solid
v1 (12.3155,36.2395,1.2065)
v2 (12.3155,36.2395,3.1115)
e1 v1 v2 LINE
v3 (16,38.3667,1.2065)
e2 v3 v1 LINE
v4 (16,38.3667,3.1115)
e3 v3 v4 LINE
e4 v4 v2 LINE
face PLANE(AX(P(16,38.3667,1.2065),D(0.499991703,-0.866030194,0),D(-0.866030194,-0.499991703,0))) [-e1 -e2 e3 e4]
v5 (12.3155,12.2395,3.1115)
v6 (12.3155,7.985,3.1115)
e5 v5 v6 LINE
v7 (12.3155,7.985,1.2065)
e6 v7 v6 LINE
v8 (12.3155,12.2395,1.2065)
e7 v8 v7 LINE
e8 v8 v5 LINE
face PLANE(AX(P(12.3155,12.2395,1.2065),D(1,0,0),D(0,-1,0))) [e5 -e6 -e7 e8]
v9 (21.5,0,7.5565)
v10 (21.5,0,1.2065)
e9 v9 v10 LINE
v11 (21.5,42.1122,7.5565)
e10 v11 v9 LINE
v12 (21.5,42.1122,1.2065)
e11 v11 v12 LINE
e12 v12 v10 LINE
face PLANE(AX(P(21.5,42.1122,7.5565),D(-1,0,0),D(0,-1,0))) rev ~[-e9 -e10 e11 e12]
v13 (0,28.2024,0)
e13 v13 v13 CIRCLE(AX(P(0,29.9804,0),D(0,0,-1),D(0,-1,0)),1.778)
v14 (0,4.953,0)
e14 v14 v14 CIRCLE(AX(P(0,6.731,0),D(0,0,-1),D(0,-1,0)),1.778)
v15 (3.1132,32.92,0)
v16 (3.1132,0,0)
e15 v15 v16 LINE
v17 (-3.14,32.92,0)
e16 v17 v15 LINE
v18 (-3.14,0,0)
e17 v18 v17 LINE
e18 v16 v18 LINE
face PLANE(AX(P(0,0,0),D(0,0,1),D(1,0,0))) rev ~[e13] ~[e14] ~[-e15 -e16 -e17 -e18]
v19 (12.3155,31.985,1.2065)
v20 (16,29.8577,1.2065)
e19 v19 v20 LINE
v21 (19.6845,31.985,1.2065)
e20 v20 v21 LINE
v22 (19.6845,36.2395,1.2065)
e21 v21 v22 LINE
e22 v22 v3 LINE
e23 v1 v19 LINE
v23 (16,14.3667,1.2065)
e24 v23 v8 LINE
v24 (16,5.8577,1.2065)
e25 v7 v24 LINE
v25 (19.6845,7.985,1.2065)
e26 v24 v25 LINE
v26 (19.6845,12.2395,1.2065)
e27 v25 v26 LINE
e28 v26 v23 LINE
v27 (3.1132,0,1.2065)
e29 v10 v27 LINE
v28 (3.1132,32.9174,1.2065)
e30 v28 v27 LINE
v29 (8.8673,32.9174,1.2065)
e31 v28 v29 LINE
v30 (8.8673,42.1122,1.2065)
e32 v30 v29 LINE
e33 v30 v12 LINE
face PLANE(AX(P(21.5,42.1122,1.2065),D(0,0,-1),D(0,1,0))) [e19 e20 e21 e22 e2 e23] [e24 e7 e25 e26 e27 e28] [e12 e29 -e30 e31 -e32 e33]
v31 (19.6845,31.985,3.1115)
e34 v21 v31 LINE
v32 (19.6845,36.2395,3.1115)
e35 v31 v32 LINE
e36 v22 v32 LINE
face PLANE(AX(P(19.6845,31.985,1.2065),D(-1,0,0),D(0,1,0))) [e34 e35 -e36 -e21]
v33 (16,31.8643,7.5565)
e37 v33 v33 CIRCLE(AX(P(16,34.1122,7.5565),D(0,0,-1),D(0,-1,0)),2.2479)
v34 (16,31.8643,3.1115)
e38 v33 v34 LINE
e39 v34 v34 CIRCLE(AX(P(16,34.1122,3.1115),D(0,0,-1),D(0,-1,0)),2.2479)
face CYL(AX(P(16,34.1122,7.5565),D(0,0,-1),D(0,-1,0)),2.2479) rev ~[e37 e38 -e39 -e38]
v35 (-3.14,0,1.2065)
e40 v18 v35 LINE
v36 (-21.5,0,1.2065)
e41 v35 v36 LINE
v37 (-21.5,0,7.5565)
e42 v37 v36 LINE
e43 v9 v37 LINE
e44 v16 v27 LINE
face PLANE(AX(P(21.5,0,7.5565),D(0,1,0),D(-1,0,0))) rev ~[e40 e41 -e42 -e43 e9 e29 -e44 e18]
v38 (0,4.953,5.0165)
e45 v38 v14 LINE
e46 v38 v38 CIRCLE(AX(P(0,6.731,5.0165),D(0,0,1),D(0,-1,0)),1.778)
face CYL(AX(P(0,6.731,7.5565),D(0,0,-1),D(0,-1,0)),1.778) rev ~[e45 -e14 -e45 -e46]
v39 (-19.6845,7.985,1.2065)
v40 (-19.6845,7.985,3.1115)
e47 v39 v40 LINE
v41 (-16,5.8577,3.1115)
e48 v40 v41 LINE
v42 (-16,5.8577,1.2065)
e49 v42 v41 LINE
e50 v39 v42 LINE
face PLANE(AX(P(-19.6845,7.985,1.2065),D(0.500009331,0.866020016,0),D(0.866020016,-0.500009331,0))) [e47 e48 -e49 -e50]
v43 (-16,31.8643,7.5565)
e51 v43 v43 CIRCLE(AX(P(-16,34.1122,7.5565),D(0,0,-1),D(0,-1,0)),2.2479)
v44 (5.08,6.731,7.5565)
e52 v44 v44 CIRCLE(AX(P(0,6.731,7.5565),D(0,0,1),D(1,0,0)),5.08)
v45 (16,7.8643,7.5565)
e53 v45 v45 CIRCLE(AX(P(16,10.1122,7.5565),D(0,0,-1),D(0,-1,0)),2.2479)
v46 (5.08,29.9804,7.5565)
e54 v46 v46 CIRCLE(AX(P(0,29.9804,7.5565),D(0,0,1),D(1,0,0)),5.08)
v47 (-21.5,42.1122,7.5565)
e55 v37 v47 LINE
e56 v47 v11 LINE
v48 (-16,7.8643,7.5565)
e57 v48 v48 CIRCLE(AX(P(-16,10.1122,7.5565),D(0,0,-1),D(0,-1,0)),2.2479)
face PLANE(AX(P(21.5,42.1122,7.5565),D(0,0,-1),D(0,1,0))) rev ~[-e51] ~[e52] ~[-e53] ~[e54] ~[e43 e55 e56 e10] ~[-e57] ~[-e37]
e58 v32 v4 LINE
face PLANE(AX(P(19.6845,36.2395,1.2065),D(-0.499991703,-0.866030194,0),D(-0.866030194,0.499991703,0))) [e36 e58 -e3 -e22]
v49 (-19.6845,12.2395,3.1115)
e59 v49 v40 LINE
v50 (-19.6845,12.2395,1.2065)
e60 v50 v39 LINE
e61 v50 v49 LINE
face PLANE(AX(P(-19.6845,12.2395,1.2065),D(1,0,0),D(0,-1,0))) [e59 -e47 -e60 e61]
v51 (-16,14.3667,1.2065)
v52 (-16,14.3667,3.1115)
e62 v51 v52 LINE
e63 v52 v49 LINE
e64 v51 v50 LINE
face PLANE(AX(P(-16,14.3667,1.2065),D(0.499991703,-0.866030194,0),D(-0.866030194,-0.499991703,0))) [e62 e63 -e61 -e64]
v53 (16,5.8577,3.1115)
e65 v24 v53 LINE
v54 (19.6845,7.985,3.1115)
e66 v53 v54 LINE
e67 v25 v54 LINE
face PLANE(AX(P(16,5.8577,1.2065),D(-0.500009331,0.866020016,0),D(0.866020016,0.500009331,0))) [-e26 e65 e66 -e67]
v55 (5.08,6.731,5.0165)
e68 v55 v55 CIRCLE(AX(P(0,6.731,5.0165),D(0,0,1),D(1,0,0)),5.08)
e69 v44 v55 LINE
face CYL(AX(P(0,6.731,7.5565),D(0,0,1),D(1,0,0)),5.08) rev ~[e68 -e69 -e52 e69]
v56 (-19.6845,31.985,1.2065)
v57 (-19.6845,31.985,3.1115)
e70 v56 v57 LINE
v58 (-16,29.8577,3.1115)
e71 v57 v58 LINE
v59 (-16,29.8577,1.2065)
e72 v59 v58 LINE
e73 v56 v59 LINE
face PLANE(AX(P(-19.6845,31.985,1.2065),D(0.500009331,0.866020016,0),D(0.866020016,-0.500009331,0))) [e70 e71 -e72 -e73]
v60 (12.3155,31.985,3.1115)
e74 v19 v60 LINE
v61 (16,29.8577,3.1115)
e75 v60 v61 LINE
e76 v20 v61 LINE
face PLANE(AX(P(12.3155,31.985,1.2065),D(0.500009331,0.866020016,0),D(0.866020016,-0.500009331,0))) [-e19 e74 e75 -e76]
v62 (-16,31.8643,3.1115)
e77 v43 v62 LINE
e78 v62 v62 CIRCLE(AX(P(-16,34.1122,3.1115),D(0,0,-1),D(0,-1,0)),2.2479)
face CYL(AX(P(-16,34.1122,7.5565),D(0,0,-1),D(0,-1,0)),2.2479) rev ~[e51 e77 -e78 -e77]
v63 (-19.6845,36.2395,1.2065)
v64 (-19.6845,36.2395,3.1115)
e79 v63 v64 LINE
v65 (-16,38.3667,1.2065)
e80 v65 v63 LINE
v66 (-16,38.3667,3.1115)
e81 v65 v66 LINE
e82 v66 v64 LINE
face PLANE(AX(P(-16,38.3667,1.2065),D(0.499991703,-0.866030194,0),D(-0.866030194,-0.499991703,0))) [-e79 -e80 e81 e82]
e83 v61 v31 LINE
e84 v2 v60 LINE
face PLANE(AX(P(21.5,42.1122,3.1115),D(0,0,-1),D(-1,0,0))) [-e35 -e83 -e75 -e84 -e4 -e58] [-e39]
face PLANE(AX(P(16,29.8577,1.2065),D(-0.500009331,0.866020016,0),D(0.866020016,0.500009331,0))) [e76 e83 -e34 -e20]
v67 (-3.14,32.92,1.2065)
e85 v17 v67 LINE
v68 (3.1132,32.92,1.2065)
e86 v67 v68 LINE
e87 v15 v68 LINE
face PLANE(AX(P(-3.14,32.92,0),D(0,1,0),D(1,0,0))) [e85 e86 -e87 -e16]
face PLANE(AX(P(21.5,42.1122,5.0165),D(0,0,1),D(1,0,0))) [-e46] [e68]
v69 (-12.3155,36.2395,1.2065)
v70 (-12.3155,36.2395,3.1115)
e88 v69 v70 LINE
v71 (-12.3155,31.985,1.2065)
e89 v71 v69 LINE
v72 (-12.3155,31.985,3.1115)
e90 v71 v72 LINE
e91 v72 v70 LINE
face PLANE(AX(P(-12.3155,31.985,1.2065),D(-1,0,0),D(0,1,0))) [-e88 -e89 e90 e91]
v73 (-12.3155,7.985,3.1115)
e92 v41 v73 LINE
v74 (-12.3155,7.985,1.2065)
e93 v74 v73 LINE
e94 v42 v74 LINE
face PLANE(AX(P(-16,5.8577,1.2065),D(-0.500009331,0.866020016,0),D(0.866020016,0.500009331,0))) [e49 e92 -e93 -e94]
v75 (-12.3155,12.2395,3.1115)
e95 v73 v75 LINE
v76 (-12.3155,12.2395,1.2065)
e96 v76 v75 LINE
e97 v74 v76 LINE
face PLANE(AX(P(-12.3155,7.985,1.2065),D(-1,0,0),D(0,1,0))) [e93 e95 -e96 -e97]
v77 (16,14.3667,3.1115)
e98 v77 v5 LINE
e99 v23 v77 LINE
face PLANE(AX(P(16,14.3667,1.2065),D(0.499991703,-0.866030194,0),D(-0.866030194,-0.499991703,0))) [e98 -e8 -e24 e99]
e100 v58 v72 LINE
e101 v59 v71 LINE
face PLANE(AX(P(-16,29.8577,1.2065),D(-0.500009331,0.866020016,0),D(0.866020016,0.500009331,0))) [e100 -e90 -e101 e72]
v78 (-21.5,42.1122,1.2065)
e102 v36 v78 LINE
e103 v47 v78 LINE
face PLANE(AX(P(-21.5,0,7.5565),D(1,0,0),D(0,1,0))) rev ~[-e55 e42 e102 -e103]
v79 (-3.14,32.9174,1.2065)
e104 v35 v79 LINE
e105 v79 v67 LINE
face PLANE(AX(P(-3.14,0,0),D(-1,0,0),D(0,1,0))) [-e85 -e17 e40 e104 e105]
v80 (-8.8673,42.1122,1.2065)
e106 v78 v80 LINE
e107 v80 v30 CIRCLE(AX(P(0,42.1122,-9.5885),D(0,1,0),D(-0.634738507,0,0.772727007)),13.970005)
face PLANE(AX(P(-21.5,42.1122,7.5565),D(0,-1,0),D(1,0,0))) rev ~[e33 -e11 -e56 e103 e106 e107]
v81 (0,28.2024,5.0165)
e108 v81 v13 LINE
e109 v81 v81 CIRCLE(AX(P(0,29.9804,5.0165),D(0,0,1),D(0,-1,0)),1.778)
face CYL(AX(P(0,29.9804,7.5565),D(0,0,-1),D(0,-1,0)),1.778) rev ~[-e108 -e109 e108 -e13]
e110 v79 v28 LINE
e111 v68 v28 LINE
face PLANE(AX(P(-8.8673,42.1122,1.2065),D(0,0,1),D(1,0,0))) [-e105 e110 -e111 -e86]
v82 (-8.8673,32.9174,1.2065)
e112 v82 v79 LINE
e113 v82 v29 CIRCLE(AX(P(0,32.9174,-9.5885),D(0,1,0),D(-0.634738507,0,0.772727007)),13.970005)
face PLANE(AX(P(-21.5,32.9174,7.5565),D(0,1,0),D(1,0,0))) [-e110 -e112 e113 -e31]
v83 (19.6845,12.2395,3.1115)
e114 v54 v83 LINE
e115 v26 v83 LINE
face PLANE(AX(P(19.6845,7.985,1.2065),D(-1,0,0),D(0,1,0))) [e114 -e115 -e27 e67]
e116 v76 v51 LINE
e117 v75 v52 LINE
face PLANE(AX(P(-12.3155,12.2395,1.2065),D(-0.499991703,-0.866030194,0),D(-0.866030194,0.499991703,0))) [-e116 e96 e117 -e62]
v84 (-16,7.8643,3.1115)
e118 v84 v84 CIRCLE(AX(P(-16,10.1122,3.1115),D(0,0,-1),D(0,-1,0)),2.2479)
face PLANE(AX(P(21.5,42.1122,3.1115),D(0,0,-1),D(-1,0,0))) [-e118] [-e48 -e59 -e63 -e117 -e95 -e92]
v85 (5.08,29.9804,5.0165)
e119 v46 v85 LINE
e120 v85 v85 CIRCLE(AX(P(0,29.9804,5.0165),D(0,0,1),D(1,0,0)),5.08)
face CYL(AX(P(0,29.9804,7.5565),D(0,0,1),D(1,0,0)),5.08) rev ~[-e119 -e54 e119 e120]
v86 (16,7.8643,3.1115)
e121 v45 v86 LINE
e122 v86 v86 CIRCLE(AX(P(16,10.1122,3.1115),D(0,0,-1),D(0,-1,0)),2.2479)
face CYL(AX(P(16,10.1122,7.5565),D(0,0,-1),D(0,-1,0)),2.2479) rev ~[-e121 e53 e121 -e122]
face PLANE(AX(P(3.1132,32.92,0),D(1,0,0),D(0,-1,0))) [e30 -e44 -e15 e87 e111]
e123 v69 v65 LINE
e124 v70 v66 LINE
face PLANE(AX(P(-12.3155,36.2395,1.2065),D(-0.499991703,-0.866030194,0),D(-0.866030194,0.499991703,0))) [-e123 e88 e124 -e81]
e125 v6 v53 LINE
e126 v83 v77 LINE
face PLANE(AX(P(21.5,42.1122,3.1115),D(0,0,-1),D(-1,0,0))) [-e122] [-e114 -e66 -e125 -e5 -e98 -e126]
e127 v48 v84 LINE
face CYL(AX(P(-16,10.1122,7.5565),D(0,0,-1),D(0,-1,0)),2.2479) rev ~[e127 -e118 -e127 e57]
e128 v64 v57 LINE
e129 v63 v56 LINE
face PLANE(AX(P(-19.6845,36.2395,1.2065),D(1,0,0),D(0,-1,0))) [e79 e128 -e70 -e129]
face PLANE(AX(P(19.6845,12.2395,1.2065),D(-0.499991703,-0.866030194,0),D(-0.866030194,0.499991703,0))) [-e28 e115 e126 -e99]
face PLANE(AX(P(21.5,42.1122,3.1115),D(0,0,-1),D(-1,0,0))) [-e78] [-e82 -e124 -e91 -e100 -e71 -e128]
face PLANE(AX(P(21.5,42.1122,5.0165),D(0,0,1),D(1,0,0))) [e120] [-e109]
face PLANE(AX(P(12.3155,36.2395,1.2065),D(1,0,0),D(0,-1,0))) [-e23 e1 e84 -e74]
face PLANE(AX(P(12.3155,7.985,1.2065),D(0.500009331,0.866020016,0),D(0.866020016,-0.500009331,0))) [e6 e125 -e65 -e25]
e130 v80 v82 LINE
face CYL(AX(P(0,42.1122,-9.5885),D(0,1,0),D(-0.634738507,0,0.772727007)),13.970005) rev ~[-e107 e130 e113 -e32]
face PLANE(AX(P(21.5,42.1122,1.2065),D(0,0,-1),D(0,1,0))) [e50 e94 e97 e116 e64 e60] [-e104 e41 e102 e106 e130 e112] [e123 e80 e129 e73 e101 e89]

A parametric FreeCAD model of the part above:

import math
import FreeCAD as App
import Part
import Sketcher

V = App.Vector
Q = App.Units.Quantity


def add_polygon(sketch, points):
    """Adds a closed chain of lines whose ends are joined by coincident constraints."""
    first, n = sketch.GeometryCount, len(points)
    for a, b in zip(points, points[1:] + points[:1]):
        sketch.addGeometry(Part.LineSegment(App.Vector(*a, 0), App.Vector(*b, 0)), False)
    for i in range(n):
        sketch.addConstraint(Sketcher.Constraint("Coincident", first + i, 2, first + (i + 1) % n, 1))

doc = App.newDocument("Part")
body = doc.addObject("PartDesign::Body", "Body")

sketch1 = body.newObject("Sketcher::SketchObject", "Sketch")
sketch1.AttachmentSupport = (doc.getObject("XY_Plane"), [""])
sketch1.MapMode = "FlatFace"
sketch1.AttachmentOffset = App.Placement(V(0, 0, 0.2975 * 25.4), App.Rotation())
add_polygon(sketch1, [(21.5, 0), (-21.5, 0), (-21.5, 42.1122), (21.5, 42.1122)])
sketch1.addGeometry(Part.Circle(V(16, 10.1122, 0), V(0, 0, 1), 2), False)
sketch1.addGeometry(Part.Circle(V(-16, 10.1122, 0), V(0, 0, 1), 2), False)
sketch1.addGeometry(Part.Circle(V(-16, 34.1122, 0), V(0, 0, 1), 2), False)
sketch1.addGeometry(Part.Circle(V(16, 34.1122, 0), V(0, 0, 1), 2), False)
sketch1.addConstraint(Sketcher.Constraint("Horizontal", 0))
sketch1.addConstraint(Sketcher.Constraint("Vertical", 1))
sketch1.addConstraint(Sketcher.Constraint("Horizontal", 2))
sketch1.addConstraint(Sketcher.Constraint("Vertical", 3))
sketch1.addConstraint(Sketcher.Constraint("Equal", 4, 5))
sketch1.addConstraint(Sketcher.Constraint("Equal", 5, 6))
sketch1.addConstraint(Sketcher.Constraint("Equal", 6, 7))
sketch1.addConstraint(Sketcher.Constraint("Symmetric", 0, 2, 3, 2, -1, 1))
sketch1.addConstraint(Sketcher.Constraint("Symmetric", 4, 3, 5, 3, -2))
sketch1.addConstraint(Sketcher.Constraint("Symmetric", 6, 3, 7, 3, -2))
sketch1.addConstraint(Sketcher.Constraint("Vertical", 5, 3, 6, 3))
sketch1.addConstraint(Sketcher.Constraint("Diameter", 4, 4.0))
sketch1.addConstraint(Sketcher.Constraint("DistanceY", -1, 1, 6, 3, Q("1.343 in")))
sketch1.addConstraint(Sketcher.Constraint("DistanceX", 0, 2, 0, 1, 43.0))
sketch1.addConstraint(Sketcher.Constraint("DistanceY", 1, 1, 1, 2, 42.1122))
sketch1.addConstraint(Sketcher.Constraint("DistanceX", -1, 1, 4, 3, 16.0))
sketch1.addConstraint(Sketcher.Constraint("DistanceY", -1, 1, 4, 3, 10.1122))
pad1 = body.newObject("PartDesign::Pad", "Pad")
pad1.Profile = sketch1
pad1.Length = Q("0.25 in")
pad1.Reversed = True

sketch2 = body.newObject("Sketcher::SketchObject", "Sketch001")
sketch2.AttachmentSupport = (doc.getObject("XY_Plane"), [""])
sketch2.MapMode = "FlatFace"
add_polygon(sketch2, [(-3.14, 0), (3.1132, 0), (3.1132, 32.92), (-3.14, 32.92)])
sketch2.addConstraint(Sketcher.Constraint("Horizontal", 0))
sketch2.addConstraint(Sketcher.Constraint("Vertical", 1))
sketch2.addConstraint(Sketcher.Constraint("Horizontal", 2))
sketch2.addConstraint(Sketcher.Constraint("Vertical", 3))
sketch2.addConstraint(Sketcher.Constraint("PointOnObject", 0, 2, -1))
sketch2.addConstraint(Sketcher.Constraint("DistanceX", 0, 1, 0, 2, Q("0.2462 in")))
sketch2.addConstraint(Sketcher.Constraint("DistanceY", 1, 1, 1, 2, 32.92))
sketch2.addConstraint(Sketcher.Constraint("DistanceX", -1, 1, 0, 2, 3.1132))
pad2 = body.newObject("PartDesign::Pad", "Pad001")
pad2.Profile = sketch2
pad2.Length = Q("0.0475 in")

sketch3 = body.newObject("Sketcher::SketchObject", "Sketch002")
sketch3.AttachmentSupport = (doc.getObject("XY_Plane"), [""])
sketch3.MapMode = "FlatFace"
sketch3.AttachmentOffset = App.Placement(V(0, 0, 0.2975 * 25.4), App.Rotation())
sketch3.addGeometry(Part.Circle(V(0, 6.731, 0), V(0, 0, 1), 1.778), False)
sketch3.addGeometry(Part.Circle(V(0, 29.9804, 0), V(0, 0, 1), 1.778), False)
sketch3.addConstraint(Sketcher.Constraint("Equal", 0, 1))
sketch3.addConstraint(Sketcher.Constraint("PointOnObject", 0, 3, -2))
sketch3.addConstraint(Sketcher.Constraint("PointOnObject", 1, 3, -2))
sketch3.addConstraint(Sketcher.Constraint("Diameter", 0, Q("0.14 in")))
sketch3.addConstraint(Sketcher.Constraint("DistanceY", -1, 1, 0, 3, Q("0.265 in")))
sketch3.addConstraint(Sketcher.Constraint("DistanceY", -1, 1, 1, 3, 29.9804))
doc.recompute()
hole = body.newObject("PartDesign::Hole", "Hole")
hole.Profile = sketch3
hole.ThreadType = "None"
hole.Diameter = Q("0.14 in")
hole.DepthType = "ThroughAll"

sketch4 = body.newObject("Sketcher::SketchObject", "Sketch003")
sketch4.AttachmentSupport = (doc.getObject("XY_Plane"), [""])
sketch4.MapMode = "FlatFace"
sketch4.AttachmentOffset = App.Placement(V(0, 0, 0.2975 * 25.4), App.Rotation())
sketch4.addGeometry(Part.Circle(V(0, 29.9804, 0), V(0, 0, 1), 5.08), False)
sketch4.addGeometry(Part.Circle(V(0, 29.9804, 0), V(0, 0, 1), 1.778), False)
sketch4.addGeometry(Part.Circle(V(0, 6.731, 0), V(0, 0, 1), 5.08), False)
sketch4.addGeometry(Part.Circle(V(0, 6.731, 0), V(0, 0, 1), 1.778), False)
sketch4.addConstraint(Sketcher.Constraint("Coincident", 1, 3, 0, 3))
sketch4.addConstraint(Sketcher.Constraint("Coincident", 3, 3, 2, 3))
sketch4.addConstraint(Sketcher.Constraint("Equal", 0, 2))
sketch4.addConstraint(Sketcher.Constraint("Equal", 1, 3))
sketch4.addConstraint(Sketcher.Constraint("PointOnObject", 0, 3, -2))
sketch4.addConstraint(Sketcher.Constraint("PointOnObject", 2, 3, -2))
sketch4.addConstraint(Sketcher.Constraint("Diameter", 0, Q("0.4 in")))
sketch4.addConstraint(Sketcher.Constraint("Diameter", 1, Q("0.14 in")))
sketch4.addConstraint(Sketcher.Constraint("DistanceY", -1, 1, 2, 3, Q("0.265 in")))
sketch4.addConstraint(Sketcher.Constraint("DistanceY", -1, 1, 0, 3, 29.9804))
pocket1 = body.newObject("PartDesign::Pocket", "Pocket")
pocket1.Profile = sketch4
pocket1.Length = Q("0.1 in")

sketch5 = body.newObject("Sketcher::SketchObject", "Sketch004")
sketch5.AttachmentSupport = (doc.getObject("XZ_Plane"), [""])
sketch5.MapMode = "FlatFace"
sketch5.AttachmentOffset = App.Placement(V(0, 0, -42.1122), App.Rotation())
sketch5.addGeometry(Part.LineSegment(V(8.8673, 1.2065, 0), V(-8.8673, 1.2065, 0)), False)
sketch5.addGeometry(Part.ArcOfCircle(Part.Circle(V(0, -9.5885, 0), V(0, 0, 1), 13.970005), math.radians(50.599407), math.radians(129.400593)), False)
sketch5.addConstraint(Sketcher.Constraint("Coincident", 0, 1, 1, 1))
sketch5.addConstraint(Sketcher.Constraint("Coincident", 1, 2, 0, 2))
sketch5.addConstraint(Sketcher.Constraint("Horizontal", 0))
sketch5.addConstraint(Sketcher.Constraint("PointOnObject", 1, 3, -2))
sketch5.addConstraint(Sketcher.Constraint("Radius", 1, Q("0.55 in")))
sketch5.addConstraint(Sketcher.Constraint("DistanceY", 1, 3, 0, 1, Q("0.425 in")))
sketch5.addConstraint(Sketcher.Constraint("DistanceY", 1, 3, -1, 1, Q("0.3775 in")))
pocket2 = body.newObject("PartDesign::Pocket", "Pocket001")
pocket2.Profile = sketch5
pocket2.Length = Q("0.362 in")
pocket2.Reversed = True

sketch6 = body.newObject("Sketcher::SketchObject", "Sketch005")
sketch6.AttachmentSupport = (doc.getObject("XY_Plane"), [""])
sketch6.MapMode = "FlatFace"
sketch6.AttachmentOffset = App.Placement(V(0, 0, 0.0475 * 25.4), App.Rotation())
add_polygon(sketch6, [(19.6845, 31.985), (16, 29.8577), (12.3155, 31.985), (12.3155, 36.2395), (16, 38.3667), (19.6845, 36.2395)])
add_polygon(sketch6, [(19.6845, 7.985), (16, 5.8577), (12.3155, 7.985), (12.3155, 12.2395), (16, 14.3667), (19.6845, 12.2395)])
add_polygon(sketch6, [(-12.3155, 31.985), (-16, 29.8577), (-19.6845, 31.985), (-19.6845, 36.2395), (-16, 38.3667), (-12.3155, 36.2395)])
add_polygon(sketch6, [(-12.3155, 7.985), (-16, 5.8577), (-19.6845, 7.985), (-19.6845, 12.2395), (-16, 14.3667), (-12.3155, 12.2395)])
sketch6.addConstraint(Sketcher.Constraint("Vertical", 2))
sketch6.addConstraint(Sketcher.Constraint("Vertical", 5))
sketch6.addConstraint(Sketcher.Constraint("Vertical", 8))
sketch6.addConstraint(Sketcher.Constraint("Vertical", 11))
sketch6.addConstraint(Sketcher.Constraint("Vertical", 14))
sketch6.addConstraint(Sketcher.Constraint("Vertical", 17))
sketch6.addConstraint(Sketcher.Constraint("Vertical", 20))
sketch6.addConstraint(Sketcher.Constraint("Vertical", 23))
sketch6.addConstraint(Sketcher.Constraint("Symmetric", 0, 2, 12, 2, -2))
sketch6.addConstraint(Sketcher.Constraint("Symmetric", 5, 2, 13, 2, -2))
sketch6.addConstraint(Sketcher.Constraint("Symmetric", 3, 2, 15, 2, -2))
sketch6.addConstraint(Sketcher.Constraint("Symmetric", 2, 2, 16, 2, -2))
sketch6.addConstraint(Sketcher.Constraint("Symmetric", 6, 2, 18, 2, -2))
sketch6.addConstraint(Sketcher.Constraint("Symmetric", 11, 2, 19, 2, -2))
sketch6.addConstraint(Sketcher.Constraint("Symmetric", 9, 2, 21, 2, -2))
sketch6.addConstraint(Sketcher.Constraint("Symmetric", 8, 2, 22, 2, -2))
sketch6.addConstraint(Sketcher.Constraint("Parallel", 0, 3))
sketch6.addConstraint(Sketcher.Constraint("Parallel", 1, 4))
sketch6.addConstraint(Sketcher.Constraint("Parallel", 3, 6))
sketch6.addConstraint(Sketcher.Constraint("Parallel", 4, 7))
sketch6.addConstraint(Sketcher.Constraint("Parallel", 6, 9))
sketch6.addConstraint(Sketcher.Constraint("Parallel", 7, 10))
sketch6.addConstraint(Sketcher.Constraint("Parallel", 9, 12))
sketch6.addConstraint(Sketcher.Constraint("Parallel", 10, 13))
sketch6.addConstraint(Sketcher.Constraint("Parallel", 12, 15))
sketch6.addConstraint(Sketcher.Constraint("Parallel", 15, 18))
sketch6.addConstraint(Sketcher.Constraint("Parallel", 18, 21))
sketch6.addConstraint(Sketcher.Constraint("Horizontal", 2, 2, 4, 2))
sketch6.addConstraint(Sketcher.Constraint("Horizontal", 1, 2, 5, 2))
sketch6.addConstraint(Sketcher.Constraint("Horizontal", 8, 2, 10, 2))
sketch6.addConstraint(Sketcher.Constraint("Horizontal", 7, 2, 11, 2))
sketch6.addConstraint(Sketcher.Constraint("Vertical", 3, 2, 6, 2))
sketch6.addConstraint(Sketcher.Constraint("Vertical", 2, 2, 7, 2))
sketch6.addConstraint(Sketcher.Constraint("Equal", 5, 8))
sketch6.addConstraint(Sketcher.Constraint("Angle", 0, Q("-149.9994 deg")))
sketch6.addConstraint(Sketcher.Constraint("DistanceY", 0, 2, 3, 2, Q("0.335 in")))
sketch6.addConstraint(Sketcher.Constraint("DistanceY", 2, 1, 2, 2, Q("0.1675 in")))
sketch6.addConstraint(Sketcher.Constraint("DistanceY", -1, 1, 0, 2, Q("1.1755 in")))
sketch6.addConstraint(Sketcher.Constraint("DistanceX", 13, 2, 0, 2, Q("1.4049 in")))
sketch6.addConstraint(Sketcher.Constraint("DistanceY", -1, 1, 6, 2, 5.8577))
pocket3 = body.newObject("PartDesign::Pocket", "Pocket002")
pocket3.Profile = sketch6
pocket3.Length = Q("0.075 in")
pocket3.Reversed = True

sketch7 = body.newObject("Sketcher::SketchObject", "Sketch006")
sketch7.AttachmentSupport = (doc.getObject("XY_Plane"), [""])
sketch7.MapMode = "FlatFace"
sketch7.AttachmentOffset = App.Placement(V(0, 0, 0.2975 * 25.4), App.Rotation())
sketch7.addGeometry(Part.Circle(V(-16, 34.1122, 0), V(0, 0, 1), 2.2479), False)
sketch7.addGeometry(Part.Circle(V(-16, 10.1122, 0), V(0, 0, 1), 2.2479), False)
sketch7.addGeometry(Part.Circle(V(16, 10.1122, 0), V(0, 0, 1), 2.2479), False)
sketch7.addGeometry(Part.Circle(V(16, 34.1122, 0), V(0, 0, 1), 2.2479), False)
sketch7.addConstraint(Sketcher.Constraint("Equal", 0, 1))
sketch7.addConstraint(Sketcher.Constraint("Equal", 1, 2))
sketch7.addConstraint(Sketcher.Constraint("Equal", 2, 3))
sketch7.addConstraint(Sketcher.Constraint("Symmetric", 1, 3, 2, 3, -2))
sketch7.addConstraint(Sketcher.Constraint("Symmetric", 0, 3, 3, 3, -2))
sketch7.addConstraint(Sketcher.Constraint("Vertical", 0, 3, 1, 3))
sketch7.addConstraint(Sketcher.Constraint("Diameter", 0, Q("0.177 in")))
sketch7.addConstraint(Sketcher.Constraint("DistanceY", -1, 1, 0, 3, Q("1.343 in")))
sketch7.addConstraint(Sketcher.Constraint("DistanceX", 0, 3, -1, 1, 16.0))
sketch7.addConstraint(Sketcher.Constraint("DistanceY", -1, 1, 1, 3, 10.1122))
doc.recompute()
hole2 = body.newObject("PartDesign::Hole", "Hole001")
hole2.Profile = sketch7
hole2.ThreadType = "None"
hole2.Diameter = Q("0.177 in")
hole2.DepthType = "ThroughAll"

doc.recompute()
